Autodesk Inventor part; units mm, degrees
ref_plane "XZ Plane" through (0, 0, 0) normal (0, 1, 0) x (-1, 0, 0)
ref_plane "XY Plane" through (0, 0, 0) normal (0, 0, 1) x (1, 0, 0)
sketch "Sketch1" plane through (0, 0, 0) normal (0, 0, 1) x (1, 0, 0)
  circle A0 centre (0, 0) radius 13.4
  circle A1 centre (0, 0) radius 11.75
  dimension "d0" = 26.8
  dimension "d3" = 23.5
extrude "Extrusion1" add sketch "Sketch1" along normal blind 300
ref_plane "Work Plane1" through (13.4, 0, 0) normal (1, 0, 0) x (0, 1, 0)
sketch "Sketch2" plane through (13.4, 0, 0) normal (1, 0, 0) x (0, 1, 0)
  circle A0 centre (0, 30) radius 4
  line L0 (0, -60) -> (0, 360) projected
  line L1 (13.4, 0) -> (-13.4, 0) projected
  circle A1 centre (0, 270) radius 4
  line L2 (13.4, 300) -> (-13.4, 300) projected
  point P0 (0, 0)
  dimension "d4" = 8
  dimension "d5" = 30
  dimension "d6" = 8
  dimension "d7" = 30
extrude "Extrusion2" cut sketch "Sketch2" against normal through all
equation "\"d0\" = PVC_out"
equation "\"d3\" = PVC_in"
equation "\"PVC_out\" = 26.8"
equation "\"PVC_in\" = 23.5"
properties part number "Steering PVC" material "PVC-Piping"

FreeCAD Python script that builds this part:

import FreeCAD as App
import Part
import Sketcher

doc = App.newDocument("Part")
params = doc.addObject("Spreadsheet::Sheet", "Params")
for row, (alias, value) in enumerate([
    ("sketch1_diameter", "26.8 mm"),
    ("sketch1_diameter2", "23.5 mm"),
    ("pad1_length", "300 mm"),
    ("sketch2_diameter", "8 mm"),
], start=1):
    params.set(f"A{row}", alias)
    params.set(f"B{row}", "=" + value)
    params.setAlias(f"B{row}", alias)

body = doc.addObject("PartDesign::Body", "Body")

# Sketch on XY plane
sketch1 = body.newObject("Sketcher::SketchObject", "Sketch")
sketch1.AttachmentSupport = (doc.getObject("XY_Plane"), [""])
sketch1.MapMode = "FlatFace"
sketch1.addGeometry([
    Part.Circle(App.Vector(0, 0, 0), App.Vector(0, 0, 1), 13),
    Part.Circle(App.Vector(0, 0, 0), App.Vector(0, 0, 1), 12),
], False)
sketch1.addConstraint([
    Sketcher.Constraint("Coincident", 0, 3, -1, 1),
    Sketcher.Constraint("Coincident", 1, 3, -1, 1),
    Sketcher.Constraint("Diameter", 0, 26.8),
    Sketcher.Constraint("Diameter", 1, 23.5),
])
sketch1.setExpression("Constraints[2]", "Params.sketch1_diameter")
sketch1.setExpression("Constraints[3]", "Params.sketch1_diameter2")
pad1 = body.newObject("PartDesign::Pad", "Pad")
pad1.Profile = sketch1
pad1.setExpression("Length", "Params.pad1_length")

# Sketch on YZ plane
sketch2 = body.newObject("Sketcher::SketchObject", "Sketch001")
sketch2.AttachmentSupport = (doc.getObject("YZ_Plane"), [""])
sketch2.MapMode = "FlatFace"
sketch2.AttachmentOffset = App.Placement(App.Vector(0, 0, 13.4), App.Rotation())
sketch2.addGeometry([
    Part.Circle(App.Vector(0, 30, 0), App.Vector(0, 0, 1), 4),
    Part.Circle(App.Vector(0, 270, 0), App.Vector(0, 0, 1), 4),
], False)
sketch2.addConstraint([
    Sketcher.Constraint("Equal", 0, 1),
    Sketcher.Constraint("PointOnObject", 0, 3, -2),
    Sketcher.Constraint("PointOnObject", 1, 3, -2),
    Sketcher.Constraint("Diameter", 0, 8.0),
    Sketcher.Constraint("DistanceY", -1, 1, 0, 3, 30.0),
    Sketcher.Constraint("DistanceY", -1, 1, 1, 3, 270.0),
])
sketch2.setExpression("Constraints[3]", "Params.sketch2_diameter")
pocket1 = body.newObject("PartDesign::Pocket", "Pocket")
pocket1.Profile = sketch2
pocket1.Type = "ThroughAll"

doc.recompute()
